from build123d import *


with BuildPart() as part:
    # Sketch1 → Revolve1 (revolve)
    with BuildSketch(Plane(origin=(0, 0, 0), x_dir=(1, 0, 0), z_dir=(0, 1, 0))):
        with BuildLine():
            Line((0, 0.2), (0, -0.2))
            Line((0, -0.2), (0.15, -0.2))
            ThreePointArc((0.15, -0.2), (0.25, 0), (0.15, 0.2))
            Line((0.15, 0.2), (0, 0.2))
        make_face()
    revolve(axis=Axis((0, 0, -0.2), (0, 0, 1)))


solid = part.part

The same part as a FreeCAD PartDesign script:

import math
import FreeCAD as App
import Part
import Sketcher

V = App.Vector

doc = App.newDocument("Part")
params = doc.addObject("Spreadsheet::Sheet", "Params")
for row, (alias, value) in enumerate([
    ("sketch1_radius", "0.25 mm"),
    ("sketch1_height", "0.4 mm"),
    ("revolution_angle", "360 deg"),
], start=1):
    params.set(f"A{row}", alias)
    params.set(f"B{row}", "=" + value)
    params.setAlias(f"B{row}", alias)

body = doc.addObject("PartDesign::Body", "Body")

# Sketch on XZ plane
sketch1 = doc.addObject("Sketcher::SketchObject", "Sketch")
body.addObject(sketch1)
sketch1.AttachmentSupport = (doc.XZ_Plane, [""])
sketch1.MapMode = "FlatFace"
sketch1.addGeometry(Part.LineSegment(V(0, -0.2, 0), V(0, 0.2, 0)), False)
sketch1.addGeometry(Part.LineSegment(V(0, 0.2, 0), V(0.15, 0.2, 0)), False)
sketch1.addGeometry(Part.ArcOfCircle(Part.Circle(V(0, 0, 0), V(0, 0, 1), 0.25), math.radians(-53), math.radians(53)), False)
sketch1.addGeometry(Part.LineSegment(V(0.15, -0.2, 0), V(0, -0.2, 0)), False)
sketch1.addConstraint(Sketcher.Constraint("Coincident", 0, 2, 1, 1))
sketch1.addConstraint(Sketcher.Constraint("Coincident", 1, 2, 2, 2))
sketch1.addConstraint(Sketcher.Constraint("Coincident", 2, 1, 3, 1))
sketch1.addConstraint(Sketcher.Constraint("Coincident", 3, 2, 0, 1))
sketch1.addConstraint(Sketcher.Constraint("Vertical", 0))
sketch1.addConstraint(Sketcher.Constraint("Horizontal", 1))
sketch1.addConstraint(Sketcher.Constraint("Horizontal", 3))
sketch1.addConstraint(Sketcher.Constraint("Coincident", 2, 3, -1, 1))
sketch1.addConstraint(Sketcher.Constraint("Symmetric", 0, 2, 3, 2, -1, 1))
sketch1.addConstraint(Sketcher.Constraint("Radius", 2, 0.25))
sketch1.addConstraint(Sketcher.Constraint("DistanceY", 0, 1, 0, 2, 0.4))
sketch1.setExpression("Constraints[9]", "Params.sketch1_radius")
sketch1.setExpression("Constraints[10]", "Params.sketch1_height")
revolution = doc.addObject("PartDesign::Revolution", "Revolution")
body.addObject(revolution)
revolution.Profile = sketch1
revolution.ReferenceAxis = (sketch1, ["V_Axis"])
revolution.setExpression("Angle", "Params.revolution_angle")

doc.recompute()
